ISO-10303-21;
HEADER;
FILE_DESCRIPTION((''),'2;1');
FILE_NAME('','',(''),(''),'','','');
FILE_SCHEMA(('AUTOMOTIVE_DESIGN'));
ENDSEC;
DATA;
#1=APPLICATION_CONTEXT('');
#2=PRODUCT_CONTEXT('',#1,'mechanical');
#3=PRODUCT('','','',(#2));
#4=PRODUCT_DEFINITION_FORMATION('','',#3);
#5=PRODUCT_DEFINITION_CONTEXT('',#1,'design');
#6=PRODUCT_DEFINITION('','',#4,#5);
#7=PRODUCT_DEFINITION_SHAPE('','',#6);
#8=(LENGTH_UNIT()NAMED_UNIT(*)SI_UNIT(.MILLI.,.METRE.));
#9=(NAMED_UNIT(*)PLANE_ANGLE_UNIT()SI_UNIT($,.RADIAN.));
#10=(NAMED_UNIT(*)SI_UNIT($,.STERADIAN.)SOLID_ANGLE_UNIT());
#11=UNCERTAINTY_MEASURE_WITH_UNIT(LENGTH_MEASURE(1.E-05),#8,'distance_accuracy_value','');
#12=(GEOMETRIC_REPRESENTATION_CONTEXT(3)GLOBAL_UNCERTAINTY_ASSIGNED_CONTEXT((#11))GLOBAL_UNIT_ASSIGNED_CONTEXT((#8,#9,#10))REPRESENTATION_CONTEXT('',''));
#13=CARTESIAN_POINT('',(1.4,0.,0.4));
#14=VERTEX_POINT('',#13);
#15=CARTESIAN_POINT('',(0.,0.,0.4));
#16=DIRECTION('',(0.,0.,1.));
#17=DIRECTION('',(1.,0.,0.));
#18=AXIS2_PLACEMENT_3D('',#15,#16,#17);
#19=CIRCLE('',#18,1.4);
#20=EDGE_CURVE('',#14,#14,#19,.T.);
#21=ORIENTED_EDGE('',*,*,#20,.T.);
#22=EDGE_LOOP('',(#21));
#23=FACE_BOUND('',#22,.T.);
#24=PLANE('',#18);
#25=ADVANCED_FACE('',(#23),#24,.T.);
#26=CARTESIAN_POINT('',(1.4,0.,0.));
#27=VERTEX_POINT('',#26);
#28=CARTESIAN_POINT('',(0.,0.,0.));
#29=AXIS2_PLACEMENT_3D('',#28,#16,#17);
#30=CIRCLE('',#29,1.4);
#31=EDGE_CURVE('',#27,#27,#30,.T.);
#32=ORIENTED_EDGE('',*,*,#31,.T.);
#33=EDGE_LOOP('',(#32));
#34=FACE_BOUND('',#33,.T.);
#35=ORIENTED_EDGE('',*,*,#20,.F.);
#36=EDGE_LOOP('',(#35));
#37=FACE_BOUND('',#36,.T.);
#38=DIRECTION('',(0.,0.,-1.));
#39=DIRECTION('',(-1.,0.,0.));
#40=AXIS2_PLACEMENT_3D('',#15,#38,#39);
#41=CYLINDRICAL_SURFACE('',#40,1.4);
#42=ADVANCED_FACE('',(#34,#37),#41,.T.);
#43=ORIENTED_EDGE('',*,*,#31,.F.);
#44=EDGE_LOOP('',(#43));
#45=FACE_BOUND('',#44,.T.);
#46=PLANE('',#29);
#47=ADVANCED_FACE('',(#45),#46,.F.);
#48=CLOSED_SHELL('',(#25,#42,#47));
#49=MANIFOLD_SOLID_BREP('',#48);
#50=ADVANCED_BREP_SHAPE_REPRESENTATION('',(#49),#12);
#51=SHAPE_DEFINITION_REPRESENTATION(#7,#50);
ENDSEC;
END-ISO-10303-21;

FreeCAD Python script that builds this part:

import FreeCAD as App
import Part
import Sketcher
from FreeCAD import Vector

doc = App.newDocument("Part")
body = doc.addObject("PartDesign::Body", "Body")

sketch1 = body.newObject("Sketcher::SketchObject", "Sketch")
sketch1.AttachmentSupport = (doc.getObject("XY_Plane"), [""])
sketch1.MapMode = "FlatFace"
sketch1.addGeometry(Part.Circle(Vector(0, 0, 0), Vector(0, 0, 1), 1.4), False)
sketch1.addConstraint(Sketcher.Constraint("Coincident", 0, 3, -1, 1))
sketch1.addConstraint(Sketcher.Constraint("Diameter", 0, 2.8))
pad1 = body.newObject("PartDesign::Pad", "Pad")
pad1.Profile = sketch1
pad1.Length = 0.4

doc.recompute()
